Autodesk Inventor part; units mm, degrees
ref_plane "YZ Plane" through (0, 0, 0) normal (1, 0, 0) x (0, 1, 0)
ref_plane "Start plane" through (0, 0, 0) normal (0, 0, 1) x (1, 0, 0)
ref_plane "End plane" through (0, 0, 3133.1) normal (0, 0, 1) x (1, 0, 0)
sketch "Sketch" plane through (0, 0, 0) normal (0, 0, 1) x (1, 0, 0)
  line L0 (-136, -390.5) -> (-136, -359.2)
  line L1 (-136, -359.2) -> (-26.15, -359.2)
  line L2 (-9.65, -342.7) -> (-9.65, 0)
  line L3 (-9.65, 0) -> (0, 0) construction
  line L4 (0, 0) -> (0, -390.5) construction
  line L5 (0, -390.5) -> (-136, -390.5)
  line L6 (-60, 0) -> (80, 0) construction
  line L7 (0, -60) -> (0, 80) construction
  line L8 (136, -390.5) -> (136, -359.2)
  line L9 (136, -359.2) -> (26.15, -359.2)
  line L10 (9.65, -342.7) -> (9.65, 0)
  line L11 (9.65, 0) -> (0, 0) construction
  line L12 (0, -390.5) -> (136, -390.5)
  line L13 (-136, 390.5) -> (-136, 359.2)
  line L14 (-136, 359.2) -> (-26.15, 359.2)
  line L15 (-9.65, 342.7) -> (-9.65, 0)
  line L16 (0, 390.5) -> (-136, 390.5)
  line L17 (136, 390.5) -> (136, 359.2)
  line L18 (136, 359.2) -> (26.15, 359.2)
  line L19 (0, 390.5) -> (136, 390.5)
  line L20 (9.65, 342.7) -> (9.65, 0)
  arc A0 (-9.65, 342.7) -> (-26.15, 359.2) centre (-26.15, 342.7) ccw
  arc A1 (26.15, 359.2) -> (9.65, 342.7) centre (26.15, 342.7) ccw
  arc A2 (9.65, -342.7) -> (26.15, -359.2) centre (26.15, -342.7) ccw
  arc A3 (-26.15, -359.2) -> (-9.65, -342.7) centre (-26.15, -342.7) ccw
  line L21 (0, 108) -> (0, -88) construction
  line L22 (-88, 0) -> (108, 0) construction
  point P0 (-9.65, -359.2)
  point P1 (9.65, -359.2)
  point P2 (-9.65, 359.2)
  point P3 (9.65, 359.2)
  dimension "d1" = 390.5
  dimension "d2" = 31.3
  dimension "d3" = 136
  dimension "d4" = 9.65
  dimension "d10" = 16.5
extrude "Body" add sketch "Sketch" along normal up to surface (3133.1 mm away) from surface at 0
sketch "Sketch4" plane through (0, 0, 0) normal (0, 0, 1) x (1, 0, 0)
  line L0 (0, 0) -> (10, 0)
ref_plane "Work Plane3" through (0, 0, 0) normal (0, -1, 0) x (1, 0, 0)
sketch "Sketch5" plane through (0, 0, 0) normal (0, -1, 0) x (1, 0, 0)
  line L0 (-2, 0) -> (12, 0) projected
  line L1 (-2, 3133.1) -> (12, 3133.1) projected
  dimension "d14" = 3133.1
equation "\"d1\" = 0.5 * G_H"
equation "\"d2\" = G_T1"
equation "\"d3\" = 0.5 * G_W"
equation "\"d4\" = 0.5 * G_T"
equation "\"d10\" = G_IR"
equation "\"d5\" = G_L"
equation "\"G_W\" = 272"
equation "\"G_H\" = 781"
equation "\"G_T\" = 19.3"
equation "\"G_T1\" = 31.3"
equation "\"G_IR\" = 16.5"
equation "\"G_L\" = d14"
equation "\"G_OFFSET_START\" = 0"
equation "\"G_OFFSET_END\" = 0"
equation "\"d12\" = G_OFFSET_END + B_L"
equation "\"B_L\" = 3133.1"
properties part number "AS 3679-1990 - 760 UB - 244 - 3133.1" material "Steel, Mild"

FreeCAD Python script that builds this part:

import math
import FreeCAD as App
import Part
import Sketcher

V = App.Vector
Q = App.Units.Quantity

doc = App.newDocument("Part")
params = doc.addObject("Spreadsheet::Sheet", "Params")
for row, (alias, value) in enumerate([
    ("sketch1_radius", "16.5 mm"),
    ("sketch1_height", "31.3 mm"),
    ("pad1_length", "3133.1 mm"),
], start=1):
    params.set(f"A{row}", alias)
    params.set(f"B{row}", "=" + value)
    params.setAlias(f"B{row}", alias)

body = doc.addObject("PartDesign::Body", "Body")

# Sketch on XY plane
sketch1 = body.newObject("Sketcher::SketchObject", "Sketch")
sketch1.AttachmentSupport = (doc.getObject("XY_Plane"), [""])
sketch1.MapMode = "FlatFace"
sketch1.addGeometry([
    Part.LineSegment(V(-136, -359, 0), V(-136, -390, 0)),  # 0
    Part.LineSegment(V(-136, -390, 0), V(136, -390, 0)),  # 1
    Part.LineSegment(V(136, -390, 0), V(136, -359, 0)),  # 2
    Part.LineSegment(V(136, -359, 0), V(26, -359, 0)),  # 3
    Part.ArcOfCircle(Part.Circle(V(26, -343, 0), V(0, 0, 1), 16), math.radians(180), math.radians(270)),  # 4
    Part.LineSegment(V(10, -343, 0), V(10, 343, 0)),  # 5
    Part.ArcOfCircle(Part.Circle(V(26, 343, 0), V(0, 0, 1), 16), math.radians(90), math.radians(180)),  # 6
    Part.LineSegment(V(26, 359, 0), V(136, 359, 0)),  # 7
    Part.LineSegment(V(136, 359, 0), V(136, 390, 0)),  # 8
    Part.LineSegment(V(136, 390, 0), V(-136, 390, 0)),  # 9
    Part.LineSegment(V(-136, 390, 0), V(-136, 359, 0)),  # 10
    Part.LineSegment(V(-136, 359, 0), V(-26, 359, 0)),  # 11
    Part.ArcOfCircle(Part.Circle(V(-26, 343, 0), V(0, 0, 1), 16), math.radians(0), math.radians(90)),  # 12
    Part.LineSegment(V(-10, 343, 0), V(-10, -343, 0)),  # 13
    Part.ArcOfCircle(Part.Circle(V(-26, -343, 0), V(0, 0, 1), 16), math.radians(-90), math.radians(0)),  # 14
    Part.LineSegment(V(-26, -359, 0), V(-136, -359, 0)),  # 15
], False)
sketch1.addConstraint([
    Sketcher.Constraint("Coincident", 0, 2, 1, 1),
    Sketcher.Constraint("Coincident", 1, 2, 2, 1),
    Sketcher.Constraint("Coincident", 2, 2, 3, 1),
    Sketcher.Constraint("Tangent", 3, 2, 4, 2),
    Sketcher.Constraint("Tangent", 4, 1, 5, 1),
    Sketcher.Constraint("Tangent", 5, 2, 6, 2),
    Sketcher.Constraint("Tangent", 6, 1, 7, 1),
    Sketcher.Constraint("Coincident", 7, 2, 8, 1),
    Sketcher.Constraint("Coincident", 8, 2, 9, 1),
    Sketcher.Constraint("Coincident", 9, 2, 10, 1),
    Sketcher.Constraint("Coincident", 10, 2, 11, 1),
    Sketcher.Constraint("Tangent", 11, 2, 12, 2),
    Sketcher.Constraint("Tangent", 12, 1, 13, 1),
    Sketcher.Constraint("Tangent", 13, 2, 14, 2),
    Sketcher.Constraint("Tangent", 14, 1, 15, 1),
    Sketcher.Constraint("Coincident", 15, 2, 0, 1),
    Sketcher.Constraint("Vertical", 0),
    Sketcher.Constraint("Horizontal", 1),
    Sketcher.Constraint("Vertical", 2),
    Sketcher.Constraint("Horizontal", 3),
    Sketcher.Constraint("Vertical", 5),
    Sketcher.Constraint("Horizontal", 7),
    Sketcher.Constraint("Vertical", 8),
    Sketcher.Constraint("Horizontal", 9),
    Sketcher.Constraint("Vertical", 10),
    Sketcher.Constraint("Horizontal", 11),
    Sketcher.Constraint("Vertical", 13),
    Sketcher.Constraint("Horizontal", 15),
    Sketcher.Constraint("Equal", 4, 6),
    Sketcher.Constraint("Equal", 6, 12),
    Sketcher.Constraint("Equal", 12, 14),
    Sketcher.Constraint("Symmetric", 4, 3, 12, 3, -1, 1),
    Sketcher.Constraint("Symmetric", 0, 2, 8, 2, -1, 1),
    Sketcher.Constraint("Symmetric", 7, 2, 10, 2, -2),
    Sketcher.Constraint("Symmetric", 2, 2, 15, 2, -2),
    Sketcher.Constraint("Radius", 4, Q("16.5 mm")),
    Sketcher.Constraint("DistanceY", 0, 2, 0, 1, Q("31.3 mm")),
    Sketcher.Constraint("DistanceX", 0, 2, -1, 1, Q("136 mm")),
    Sketcher.Constraint("DistanceY", 0, 2, -1, 1, Q("390.5 mm")),
    Sketcher.Constraint("DistanceX", -1, 1, 4, 1, Q("9.65 mm")),
])
sketch1.setExpression("Constraints[35]", "Params.sketch1_radius")
sketch1.setExpression("Constraints[36]", "Params.sketch1_height")
pad1 = body.newObject("PartDesign::Pad", "Pad")
pad1.Profile = sketch1
pad1.setExpression("Length", "Params.pad1_length")

doc.recompute()
